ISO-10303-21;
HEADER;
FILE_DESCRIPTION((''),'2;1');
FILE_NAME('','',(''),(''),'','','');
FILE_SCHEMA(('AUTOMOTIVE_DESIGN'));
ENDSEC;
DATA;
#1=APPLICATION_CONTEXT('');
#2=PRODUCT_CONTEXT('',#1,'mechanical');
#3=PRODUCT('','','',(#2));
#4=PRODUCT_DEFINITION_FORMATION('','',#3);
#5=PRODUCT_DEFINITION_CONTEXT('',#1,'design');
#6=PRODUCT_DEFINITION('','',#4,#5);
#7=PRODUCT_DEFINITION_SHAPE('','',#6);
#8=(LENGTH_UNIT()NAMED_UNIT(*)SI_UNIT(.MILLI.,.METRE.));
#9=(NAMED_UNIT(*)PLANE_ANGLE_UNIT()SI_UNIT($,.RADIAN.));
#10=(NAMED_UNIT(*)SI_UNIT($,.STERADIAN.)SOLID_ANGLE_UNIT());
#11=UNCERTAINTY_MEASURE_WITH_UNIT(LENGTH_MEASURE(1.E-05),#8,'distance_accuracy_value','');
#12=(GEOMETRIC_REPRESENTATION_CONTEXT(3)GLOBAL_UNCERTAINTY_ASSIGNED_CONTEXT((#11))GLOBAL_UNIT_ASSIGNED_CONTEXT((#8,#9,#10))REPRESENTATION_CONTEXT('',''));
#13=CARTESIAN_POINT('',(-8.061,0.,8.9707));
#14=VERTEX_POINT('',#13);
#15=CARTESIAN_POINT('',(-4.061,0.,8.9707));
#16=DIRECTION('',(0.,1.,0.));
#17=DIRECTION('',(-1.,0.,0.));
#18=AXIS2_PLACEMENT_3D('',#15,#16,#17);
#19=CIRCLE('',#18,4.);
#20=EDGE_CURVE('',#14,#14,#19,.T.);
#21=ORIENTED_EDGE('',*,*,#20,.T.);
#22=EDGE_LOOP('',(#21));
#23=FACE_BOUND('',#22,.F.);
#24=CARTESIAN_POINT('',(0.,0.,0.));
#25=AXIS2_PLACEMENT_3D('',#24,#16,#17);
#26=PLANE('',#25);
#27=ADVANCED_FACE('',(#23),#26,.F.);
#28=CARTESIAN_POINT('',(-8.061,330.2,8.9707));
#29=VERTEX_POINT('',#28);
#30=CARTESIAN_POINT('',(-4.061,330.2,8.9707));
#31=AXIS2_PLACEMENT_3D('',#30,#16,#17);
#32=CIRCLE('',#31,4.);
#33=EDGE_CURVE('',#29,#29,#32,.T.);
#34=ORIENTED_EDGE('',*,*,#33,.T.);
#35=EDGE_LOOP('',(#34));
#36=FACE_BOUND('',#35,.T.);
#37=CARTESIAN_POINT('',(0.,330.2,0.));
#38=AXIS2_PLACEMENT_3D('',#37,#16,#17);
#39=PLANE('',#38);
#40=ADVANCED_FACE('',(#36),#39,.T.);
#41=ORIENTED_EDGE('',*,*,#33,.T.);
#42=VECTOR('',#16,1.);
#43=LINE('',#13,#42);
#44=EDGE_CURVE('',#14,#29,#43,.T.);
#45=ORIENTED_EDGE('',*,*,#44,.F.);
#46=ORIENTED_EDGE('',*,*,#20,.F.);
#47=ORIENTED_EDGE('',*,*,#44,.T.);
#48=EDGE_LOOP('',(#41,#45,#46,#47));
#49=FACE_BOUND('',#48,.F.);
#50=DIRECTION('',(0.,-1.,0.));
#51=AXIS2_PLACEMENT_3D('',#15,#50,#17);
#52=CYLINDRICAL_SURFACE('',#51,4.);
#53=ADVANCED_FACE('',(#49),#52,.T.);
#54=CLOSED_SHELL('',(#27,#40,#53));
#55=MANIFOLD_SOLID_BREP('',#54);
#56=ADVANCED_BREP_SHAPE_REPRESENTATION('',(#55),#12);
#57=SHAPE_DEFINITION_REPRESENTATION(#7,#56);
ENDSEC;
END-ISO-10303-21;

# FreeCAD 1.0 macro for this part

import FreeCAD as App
import Part
import Sketcher
from FreeCAD import Vector

doc = App.newDocument("Part")
params = doc.addObject("Spreadsheet::Sheet", "Params")
for row, (alias, value) in enumerate([
    ("sketch1_diameter", "8 mm"),
    ("pad1_length", "330.2 mm"),
], start=1):
    params.set(f"A{row}", alias)
    params.set(f"B{row}", "=" + value)
    params.setAlias(f"B{row}", alias)

body = doc.addObject("PartDesign::Body", "Body")

sketch1 = body.newObject("Sketcher::SketchObject", "Sketch")
sketch1.AttachmentSupport = (doc.getObject("XZ_Plane"), [""])
sketch1.MapMode = "FlatFace"
sketch1.addGeometry(Part.Circle(Vector(-4.061, 8.9707, 0), Vector(0, 0, 1), 4), False)
sketch1.addConstraint([
    Sketcher.Constraint("Diameter", 0, 8.0),
    Sketcher.Constraint("DistanceX", 0, 3, -1, 1, 4.061),
    Sketcher.Constraint("DistanceY", -1, 1, 0, 3, 8.9707),
])
sketch1.setExpression("Constraints[0]", "Params.sketch1_diameter")
pad1 = body.newObject("PartDesign::Pad", "Pad")
pad1.Profile = sketch1
pad1.setExpression("Length", "Params.pad1_length")
pad1.Reversed = True

doc.recompute()
